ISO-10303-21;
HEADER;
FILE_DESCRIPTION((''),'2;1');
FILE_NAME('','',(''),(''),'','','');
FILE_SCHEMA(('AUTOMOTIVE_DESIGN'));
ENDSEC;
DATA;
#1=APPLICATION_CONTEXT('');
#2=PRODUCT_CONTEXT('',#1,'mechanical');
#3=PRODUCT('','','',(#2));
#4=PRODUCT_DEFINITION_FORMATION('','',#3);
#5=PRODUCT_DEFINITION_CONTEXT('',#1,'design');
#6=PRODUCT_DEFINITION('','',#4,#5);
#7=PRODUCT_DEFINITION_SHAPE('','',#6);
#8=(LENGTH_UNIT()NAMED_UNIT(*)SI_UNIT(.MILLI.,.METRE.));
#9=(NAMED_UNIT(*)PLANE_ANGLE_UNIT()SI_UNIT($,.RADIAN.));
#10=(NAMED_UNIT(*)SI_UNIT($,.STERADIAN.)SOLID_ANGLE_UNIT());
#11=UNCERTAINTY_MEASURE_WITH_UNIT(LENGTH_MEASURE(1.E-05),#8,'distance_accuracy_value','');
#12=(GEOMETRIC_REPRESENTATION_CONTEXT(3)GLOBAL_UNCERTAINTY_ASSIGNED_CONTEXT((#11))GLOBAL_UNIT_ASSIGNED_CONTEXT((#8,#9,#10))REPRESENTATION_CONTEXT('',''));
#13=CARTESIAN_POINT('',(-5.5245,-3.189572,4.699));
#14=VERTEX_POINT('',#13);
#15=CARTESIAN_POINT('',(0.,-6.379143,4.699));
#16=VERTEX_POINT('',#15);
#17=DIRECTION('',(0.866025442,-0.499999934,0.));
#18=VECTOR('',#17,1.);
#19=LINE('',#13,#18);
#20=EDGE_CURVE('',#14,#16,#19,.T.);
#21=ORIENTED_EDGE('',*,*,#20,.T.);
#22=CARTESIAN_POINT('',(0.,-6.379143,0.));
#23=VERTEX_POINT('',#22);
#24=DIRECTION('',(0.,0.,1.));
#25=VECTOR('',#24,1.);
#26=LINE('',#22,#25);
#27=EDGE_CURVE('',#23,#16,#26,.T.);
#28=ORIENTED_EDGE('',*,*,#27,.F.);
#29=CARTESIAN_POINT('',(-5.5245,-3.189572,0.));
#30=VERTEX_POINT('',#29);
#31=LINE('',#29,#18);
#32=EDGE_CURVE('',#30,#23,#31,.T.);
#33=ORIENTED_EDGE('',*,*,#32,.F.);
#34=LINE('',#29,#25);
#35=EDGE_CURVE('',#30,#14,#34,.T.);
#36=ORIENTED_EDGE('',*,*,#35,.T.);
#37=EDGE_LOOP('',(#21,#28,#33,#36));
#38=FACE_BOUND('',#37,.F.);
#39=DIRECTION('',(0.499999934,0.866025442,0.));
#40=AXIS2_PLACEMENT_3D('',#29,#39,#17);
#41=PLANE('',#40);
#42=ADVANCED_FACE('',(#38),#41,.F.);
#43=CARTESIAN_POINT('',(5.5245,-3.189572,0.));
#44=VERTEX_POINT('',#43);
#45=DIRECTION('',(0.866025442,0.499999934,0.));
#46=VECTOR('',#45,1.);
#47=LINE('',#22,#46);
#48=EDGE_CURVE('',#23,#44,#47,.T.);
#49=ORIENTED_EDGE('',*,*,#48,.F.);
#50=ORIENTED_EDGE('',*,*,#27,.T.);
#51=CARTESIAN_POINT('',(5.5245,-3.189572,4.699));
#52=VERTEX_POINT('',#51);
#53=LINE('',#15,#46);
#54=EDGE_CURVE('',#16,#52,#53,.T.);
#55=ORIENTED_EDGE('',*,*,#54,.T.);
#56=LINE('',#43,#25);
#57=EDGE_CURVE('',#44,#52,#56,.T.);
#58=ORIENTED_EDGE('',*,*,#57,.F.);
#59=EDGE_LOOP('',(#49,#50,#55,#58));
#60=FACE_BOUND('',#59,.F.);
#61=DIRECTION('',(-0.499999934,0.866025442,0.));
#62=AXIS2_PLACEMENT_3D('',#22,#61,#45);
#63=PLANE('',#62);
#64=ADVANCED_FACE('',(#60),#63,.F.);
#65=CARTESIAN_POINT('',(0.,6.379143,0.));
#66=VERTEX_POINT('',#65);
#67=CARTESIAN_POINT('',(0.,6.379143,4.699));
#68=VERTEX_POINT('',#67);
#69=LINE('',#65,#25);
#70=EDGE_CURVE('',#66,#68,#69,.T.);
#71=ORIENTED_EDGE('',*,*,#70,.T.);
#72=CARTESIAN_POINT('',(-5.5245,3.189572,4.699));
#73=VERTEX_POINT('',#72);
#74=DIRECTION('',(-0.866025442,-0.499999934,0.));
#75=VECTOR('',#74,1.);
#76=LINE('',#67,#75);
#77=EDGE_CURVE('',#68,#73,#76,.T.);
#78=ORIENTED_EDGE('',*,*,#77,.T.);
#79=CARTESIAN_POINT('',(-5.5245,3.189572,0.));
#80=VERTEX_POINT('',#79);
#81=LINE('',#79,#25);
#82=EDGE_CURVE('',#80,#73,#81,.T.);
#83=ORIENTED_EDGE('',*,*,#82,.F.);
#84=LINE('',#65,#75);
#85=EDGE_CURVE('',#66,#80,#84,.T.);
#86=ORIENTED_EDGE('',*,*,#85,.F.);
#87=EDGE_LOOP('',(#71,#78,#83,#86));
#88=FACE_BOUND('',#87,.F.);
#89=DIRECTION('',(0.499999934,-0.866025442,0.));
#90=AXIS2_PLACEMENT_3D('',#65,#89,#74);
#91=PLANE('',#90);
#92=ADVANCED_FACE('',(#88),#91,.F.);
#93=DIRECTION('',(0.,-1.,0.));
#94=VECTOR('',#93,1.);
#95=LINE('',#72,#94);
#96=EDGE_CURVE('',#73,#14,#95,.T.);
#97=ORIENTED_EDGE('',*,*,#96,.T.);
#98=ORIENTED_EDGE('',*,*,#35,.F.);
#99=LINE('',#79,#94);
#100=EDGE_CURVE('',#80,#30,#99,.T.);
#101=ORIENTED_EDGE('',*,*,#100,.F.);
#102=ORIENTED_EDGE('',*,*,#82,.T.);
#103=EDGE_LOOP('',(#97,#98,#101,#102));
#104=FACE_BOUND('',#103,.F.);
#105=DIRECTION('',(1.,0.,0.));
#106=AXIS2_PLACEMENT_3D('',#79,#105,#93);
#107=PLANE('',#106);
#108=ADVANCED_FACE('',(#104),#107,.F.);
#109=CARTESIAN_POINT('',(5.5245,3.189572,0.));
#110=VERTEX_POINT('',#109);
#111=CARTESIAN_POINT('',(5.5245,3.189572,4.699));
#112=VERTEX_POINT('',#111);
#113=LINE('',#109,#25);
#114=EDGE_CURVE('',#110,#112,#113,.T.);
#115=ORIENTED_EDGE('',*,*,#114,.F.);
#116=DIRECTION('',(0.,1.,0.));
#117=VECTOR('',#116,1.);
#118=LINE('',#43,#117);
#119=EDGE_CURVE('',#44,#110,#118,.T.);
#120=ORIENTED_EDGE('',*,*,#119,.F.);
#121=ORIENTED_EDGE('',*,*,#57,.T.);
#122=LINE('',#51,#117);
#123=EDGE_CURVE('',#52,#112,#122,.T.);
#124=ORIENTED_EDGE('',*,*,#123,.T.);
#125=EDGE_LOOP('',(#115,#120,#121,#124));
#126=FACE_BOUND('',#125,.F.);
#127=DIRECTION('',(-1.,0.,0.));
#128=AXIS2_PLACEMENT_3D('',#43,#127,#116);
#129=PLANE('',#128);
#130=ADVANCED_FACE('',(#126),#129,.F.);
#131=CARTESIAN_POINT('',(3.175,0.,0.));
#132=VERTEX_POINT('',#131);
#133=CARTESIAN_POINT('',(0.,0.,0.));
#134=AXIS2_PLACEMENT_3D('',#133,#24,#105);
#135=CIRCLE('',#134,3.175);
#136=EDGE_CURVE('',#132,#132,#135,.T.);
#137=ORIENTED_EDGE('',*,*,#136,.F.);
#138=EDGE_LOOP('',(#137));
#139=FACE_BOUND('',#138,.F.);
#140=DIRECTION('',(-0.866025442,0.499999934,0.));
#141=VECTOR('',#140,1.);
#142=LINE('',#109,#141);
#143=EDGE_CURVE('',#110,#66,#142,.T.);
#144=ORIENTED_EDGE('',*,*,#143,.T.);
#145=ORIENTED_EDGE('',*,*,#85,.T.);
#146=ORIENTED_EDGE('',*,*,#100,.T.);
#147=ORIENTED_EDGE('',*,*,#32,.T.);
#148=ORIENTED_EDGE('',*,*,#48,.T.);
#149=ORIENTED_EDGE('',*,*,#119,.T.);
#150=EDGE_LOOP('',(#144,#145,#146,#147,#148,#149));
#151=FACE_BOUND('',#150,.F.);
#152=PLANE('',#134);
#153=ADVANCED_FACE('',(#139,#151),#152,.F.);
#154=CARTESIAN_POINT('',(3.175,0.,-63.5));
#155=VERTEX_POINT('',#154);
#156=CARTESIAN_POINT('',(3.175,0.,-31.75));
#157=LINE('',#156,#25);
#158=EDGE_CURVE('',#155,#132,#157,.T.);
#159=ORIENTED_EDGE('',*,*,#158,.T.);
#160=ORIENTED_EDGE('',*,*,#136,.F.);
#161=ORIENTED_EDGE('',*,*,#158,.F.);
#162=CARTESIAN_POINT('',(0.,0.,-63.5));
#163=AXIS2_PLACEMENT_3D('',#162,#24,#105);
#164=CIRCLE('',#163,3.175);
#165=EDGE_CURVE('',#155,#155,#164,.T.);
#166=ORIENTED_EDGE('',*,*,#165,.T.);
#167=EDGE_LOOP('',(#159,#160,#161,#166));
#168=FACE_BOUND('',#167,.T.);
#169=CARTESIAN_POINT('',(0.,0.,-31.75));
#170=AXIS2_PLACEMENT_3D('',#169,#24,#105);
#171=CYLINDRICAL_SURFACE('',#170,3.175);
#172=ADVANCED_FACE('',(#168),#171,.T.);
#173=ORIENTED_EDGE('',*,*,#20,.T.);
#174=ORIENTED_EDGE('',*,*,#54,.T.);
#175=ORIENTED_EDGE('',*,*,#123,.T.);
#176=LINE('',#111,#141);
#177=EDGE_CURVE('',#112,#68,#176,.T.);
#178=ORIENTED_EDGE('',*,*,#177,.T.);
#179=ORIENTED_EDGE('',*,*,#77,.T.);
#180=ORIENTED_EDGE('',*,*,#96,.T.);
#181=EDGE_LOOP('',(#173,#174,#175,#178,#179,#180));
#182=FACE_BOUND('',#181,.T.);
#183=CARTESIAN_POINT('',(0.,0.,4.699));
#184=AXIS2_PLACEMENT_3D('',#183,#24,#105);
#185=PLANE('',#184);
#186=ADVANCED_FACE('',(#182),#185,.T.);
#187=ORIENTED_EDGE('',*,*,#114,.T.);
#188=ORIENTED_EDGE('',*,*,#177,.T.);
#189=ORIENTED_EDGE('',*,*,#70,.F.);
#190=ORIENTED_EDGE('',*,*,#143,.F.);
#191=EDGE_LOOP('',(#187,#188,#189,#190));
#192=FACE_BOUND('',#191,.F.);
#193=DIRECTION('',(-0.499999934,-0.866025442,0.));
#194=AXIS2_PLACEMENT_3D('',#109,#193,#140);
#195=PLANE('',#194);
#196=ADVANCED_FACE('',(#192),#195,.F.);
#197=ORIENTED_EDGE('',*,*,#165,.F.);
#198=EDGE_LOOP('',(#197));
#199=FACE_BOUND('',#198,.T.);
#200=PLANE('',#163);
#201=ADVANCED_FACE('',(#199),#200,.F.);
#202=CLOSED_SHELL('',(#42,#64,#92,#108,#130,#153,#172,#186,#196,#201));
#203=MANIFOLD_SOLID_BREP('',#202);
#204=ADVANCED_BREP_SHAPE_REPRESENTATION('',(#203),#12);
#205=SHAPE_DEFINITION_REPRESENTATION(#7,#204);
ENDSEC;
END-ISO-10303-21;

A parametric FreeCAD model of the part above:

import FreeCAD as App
import Part
import Sketcher
from FreeCAD import Vector
Q = App.Units.Quantity


def add_polygon(sketch, points):
    """Adds a closed chain of lines whose ends are joined by coincident constraints."""
    first, n = sketch.GeometryCount, len(points)
    for a, b in zip(points, points[1:] + points[:1]):
        sketch.addGeometry(Part.LineSegment(App.Vector(*a, 0), App.Vector(*b, 0)), False)
    for i in range(n):
        sketch.addConstraint(Sketcher.Constraint("Coincident", first + i, 2, first + (i + 1) % n, 1))

doc = App.newDocument("Part")
body = doc.addObject("PartDesign::Body", "Body")

# Sketch on XZ plane
sketch1 = body.newObject("Sketcher::SketchObject", "Sketch")
sketch1.AttachmentSupport = (doc.getObject("XZ_Plane"), [""])
sketch1.MapMode = "FlatFace"
add_polygon(sketch1, [(0, 0), (0, -63.5), (3.2, -63.5), (3.2, 0)])  # lines 0-3
sketch1.addConstraint([
    Sketcher.Constraint("Vertical", 0),
    Sketcher.Constraint("Horizontal", 1),
    Sketcher.Constraint("Vertical", 2),
    Sketcher.Constraint("Horizontal", 3),
    Sketcher.Constraint("Coincident", 3, 2, -1, 1),
    Sketcher.Constraint("DistanceY", 0, 2, 0, 1, Q("2.5 in")),
    Sketcher.Constraint("DistanceX", 1, 1, 1, 2, Q("0.125 in")),
])
revolution = body.newObject("PartDesign::Revolution", "Revolution")
revolution.Profile = sketch1
revolution.ReferenceAxis = (sketch1, ["V_Axis"])
revolution.Angle = 360

# Sketch on XY plane
sketch2 = body.newObject("Sketcher::SketchObject", "Sketch001")
sketch2.AttachmentSupport = (doc.getObject("XY_Plane"), [""])
sketch2.MapMode = "FlatFace"
add_polygon(sketch2, [(6, -3), (6, 3), (0, 6), (-6, 3), (-6, -3), (0, -6)])  # lines 0-5
sketch2.addConstraint([
    Sketcher.Constraint("Vertical", 0),
    Sketcher.Constraint("Vertical", 3),
    Sketcher.Constraint("Symmetric", 0, 2, 3, 2, -1, 1),
    Sketcher.Constraint("Symmetric", 1, 2, 4, 2, -1, 1),
    Sketcher.Constraint("PointOnObject", 1, 2, -2),
    Sketcher.Constraint("Parallel", 2, 5),
    Sketcher.Constraint("Horizontal", 0, 2, 2, 2),
    Sketcher.Constraint("Angle", 1, Q("150.000004 deg")),
    Sketcher.Constraint("DistanceX", 2, 2, 0, 2, Q("0.435 in")),
    Sketcher.Constraint("DistanceY", 0, 1, 0, 2, Q("6.379144 mm")),
])
pad1 = body.newObject("PartDesign::Pad", "Pad")
pad1.Profile = sketch2
pad1.Length = Q("0.185 in")

doc.recompute()
